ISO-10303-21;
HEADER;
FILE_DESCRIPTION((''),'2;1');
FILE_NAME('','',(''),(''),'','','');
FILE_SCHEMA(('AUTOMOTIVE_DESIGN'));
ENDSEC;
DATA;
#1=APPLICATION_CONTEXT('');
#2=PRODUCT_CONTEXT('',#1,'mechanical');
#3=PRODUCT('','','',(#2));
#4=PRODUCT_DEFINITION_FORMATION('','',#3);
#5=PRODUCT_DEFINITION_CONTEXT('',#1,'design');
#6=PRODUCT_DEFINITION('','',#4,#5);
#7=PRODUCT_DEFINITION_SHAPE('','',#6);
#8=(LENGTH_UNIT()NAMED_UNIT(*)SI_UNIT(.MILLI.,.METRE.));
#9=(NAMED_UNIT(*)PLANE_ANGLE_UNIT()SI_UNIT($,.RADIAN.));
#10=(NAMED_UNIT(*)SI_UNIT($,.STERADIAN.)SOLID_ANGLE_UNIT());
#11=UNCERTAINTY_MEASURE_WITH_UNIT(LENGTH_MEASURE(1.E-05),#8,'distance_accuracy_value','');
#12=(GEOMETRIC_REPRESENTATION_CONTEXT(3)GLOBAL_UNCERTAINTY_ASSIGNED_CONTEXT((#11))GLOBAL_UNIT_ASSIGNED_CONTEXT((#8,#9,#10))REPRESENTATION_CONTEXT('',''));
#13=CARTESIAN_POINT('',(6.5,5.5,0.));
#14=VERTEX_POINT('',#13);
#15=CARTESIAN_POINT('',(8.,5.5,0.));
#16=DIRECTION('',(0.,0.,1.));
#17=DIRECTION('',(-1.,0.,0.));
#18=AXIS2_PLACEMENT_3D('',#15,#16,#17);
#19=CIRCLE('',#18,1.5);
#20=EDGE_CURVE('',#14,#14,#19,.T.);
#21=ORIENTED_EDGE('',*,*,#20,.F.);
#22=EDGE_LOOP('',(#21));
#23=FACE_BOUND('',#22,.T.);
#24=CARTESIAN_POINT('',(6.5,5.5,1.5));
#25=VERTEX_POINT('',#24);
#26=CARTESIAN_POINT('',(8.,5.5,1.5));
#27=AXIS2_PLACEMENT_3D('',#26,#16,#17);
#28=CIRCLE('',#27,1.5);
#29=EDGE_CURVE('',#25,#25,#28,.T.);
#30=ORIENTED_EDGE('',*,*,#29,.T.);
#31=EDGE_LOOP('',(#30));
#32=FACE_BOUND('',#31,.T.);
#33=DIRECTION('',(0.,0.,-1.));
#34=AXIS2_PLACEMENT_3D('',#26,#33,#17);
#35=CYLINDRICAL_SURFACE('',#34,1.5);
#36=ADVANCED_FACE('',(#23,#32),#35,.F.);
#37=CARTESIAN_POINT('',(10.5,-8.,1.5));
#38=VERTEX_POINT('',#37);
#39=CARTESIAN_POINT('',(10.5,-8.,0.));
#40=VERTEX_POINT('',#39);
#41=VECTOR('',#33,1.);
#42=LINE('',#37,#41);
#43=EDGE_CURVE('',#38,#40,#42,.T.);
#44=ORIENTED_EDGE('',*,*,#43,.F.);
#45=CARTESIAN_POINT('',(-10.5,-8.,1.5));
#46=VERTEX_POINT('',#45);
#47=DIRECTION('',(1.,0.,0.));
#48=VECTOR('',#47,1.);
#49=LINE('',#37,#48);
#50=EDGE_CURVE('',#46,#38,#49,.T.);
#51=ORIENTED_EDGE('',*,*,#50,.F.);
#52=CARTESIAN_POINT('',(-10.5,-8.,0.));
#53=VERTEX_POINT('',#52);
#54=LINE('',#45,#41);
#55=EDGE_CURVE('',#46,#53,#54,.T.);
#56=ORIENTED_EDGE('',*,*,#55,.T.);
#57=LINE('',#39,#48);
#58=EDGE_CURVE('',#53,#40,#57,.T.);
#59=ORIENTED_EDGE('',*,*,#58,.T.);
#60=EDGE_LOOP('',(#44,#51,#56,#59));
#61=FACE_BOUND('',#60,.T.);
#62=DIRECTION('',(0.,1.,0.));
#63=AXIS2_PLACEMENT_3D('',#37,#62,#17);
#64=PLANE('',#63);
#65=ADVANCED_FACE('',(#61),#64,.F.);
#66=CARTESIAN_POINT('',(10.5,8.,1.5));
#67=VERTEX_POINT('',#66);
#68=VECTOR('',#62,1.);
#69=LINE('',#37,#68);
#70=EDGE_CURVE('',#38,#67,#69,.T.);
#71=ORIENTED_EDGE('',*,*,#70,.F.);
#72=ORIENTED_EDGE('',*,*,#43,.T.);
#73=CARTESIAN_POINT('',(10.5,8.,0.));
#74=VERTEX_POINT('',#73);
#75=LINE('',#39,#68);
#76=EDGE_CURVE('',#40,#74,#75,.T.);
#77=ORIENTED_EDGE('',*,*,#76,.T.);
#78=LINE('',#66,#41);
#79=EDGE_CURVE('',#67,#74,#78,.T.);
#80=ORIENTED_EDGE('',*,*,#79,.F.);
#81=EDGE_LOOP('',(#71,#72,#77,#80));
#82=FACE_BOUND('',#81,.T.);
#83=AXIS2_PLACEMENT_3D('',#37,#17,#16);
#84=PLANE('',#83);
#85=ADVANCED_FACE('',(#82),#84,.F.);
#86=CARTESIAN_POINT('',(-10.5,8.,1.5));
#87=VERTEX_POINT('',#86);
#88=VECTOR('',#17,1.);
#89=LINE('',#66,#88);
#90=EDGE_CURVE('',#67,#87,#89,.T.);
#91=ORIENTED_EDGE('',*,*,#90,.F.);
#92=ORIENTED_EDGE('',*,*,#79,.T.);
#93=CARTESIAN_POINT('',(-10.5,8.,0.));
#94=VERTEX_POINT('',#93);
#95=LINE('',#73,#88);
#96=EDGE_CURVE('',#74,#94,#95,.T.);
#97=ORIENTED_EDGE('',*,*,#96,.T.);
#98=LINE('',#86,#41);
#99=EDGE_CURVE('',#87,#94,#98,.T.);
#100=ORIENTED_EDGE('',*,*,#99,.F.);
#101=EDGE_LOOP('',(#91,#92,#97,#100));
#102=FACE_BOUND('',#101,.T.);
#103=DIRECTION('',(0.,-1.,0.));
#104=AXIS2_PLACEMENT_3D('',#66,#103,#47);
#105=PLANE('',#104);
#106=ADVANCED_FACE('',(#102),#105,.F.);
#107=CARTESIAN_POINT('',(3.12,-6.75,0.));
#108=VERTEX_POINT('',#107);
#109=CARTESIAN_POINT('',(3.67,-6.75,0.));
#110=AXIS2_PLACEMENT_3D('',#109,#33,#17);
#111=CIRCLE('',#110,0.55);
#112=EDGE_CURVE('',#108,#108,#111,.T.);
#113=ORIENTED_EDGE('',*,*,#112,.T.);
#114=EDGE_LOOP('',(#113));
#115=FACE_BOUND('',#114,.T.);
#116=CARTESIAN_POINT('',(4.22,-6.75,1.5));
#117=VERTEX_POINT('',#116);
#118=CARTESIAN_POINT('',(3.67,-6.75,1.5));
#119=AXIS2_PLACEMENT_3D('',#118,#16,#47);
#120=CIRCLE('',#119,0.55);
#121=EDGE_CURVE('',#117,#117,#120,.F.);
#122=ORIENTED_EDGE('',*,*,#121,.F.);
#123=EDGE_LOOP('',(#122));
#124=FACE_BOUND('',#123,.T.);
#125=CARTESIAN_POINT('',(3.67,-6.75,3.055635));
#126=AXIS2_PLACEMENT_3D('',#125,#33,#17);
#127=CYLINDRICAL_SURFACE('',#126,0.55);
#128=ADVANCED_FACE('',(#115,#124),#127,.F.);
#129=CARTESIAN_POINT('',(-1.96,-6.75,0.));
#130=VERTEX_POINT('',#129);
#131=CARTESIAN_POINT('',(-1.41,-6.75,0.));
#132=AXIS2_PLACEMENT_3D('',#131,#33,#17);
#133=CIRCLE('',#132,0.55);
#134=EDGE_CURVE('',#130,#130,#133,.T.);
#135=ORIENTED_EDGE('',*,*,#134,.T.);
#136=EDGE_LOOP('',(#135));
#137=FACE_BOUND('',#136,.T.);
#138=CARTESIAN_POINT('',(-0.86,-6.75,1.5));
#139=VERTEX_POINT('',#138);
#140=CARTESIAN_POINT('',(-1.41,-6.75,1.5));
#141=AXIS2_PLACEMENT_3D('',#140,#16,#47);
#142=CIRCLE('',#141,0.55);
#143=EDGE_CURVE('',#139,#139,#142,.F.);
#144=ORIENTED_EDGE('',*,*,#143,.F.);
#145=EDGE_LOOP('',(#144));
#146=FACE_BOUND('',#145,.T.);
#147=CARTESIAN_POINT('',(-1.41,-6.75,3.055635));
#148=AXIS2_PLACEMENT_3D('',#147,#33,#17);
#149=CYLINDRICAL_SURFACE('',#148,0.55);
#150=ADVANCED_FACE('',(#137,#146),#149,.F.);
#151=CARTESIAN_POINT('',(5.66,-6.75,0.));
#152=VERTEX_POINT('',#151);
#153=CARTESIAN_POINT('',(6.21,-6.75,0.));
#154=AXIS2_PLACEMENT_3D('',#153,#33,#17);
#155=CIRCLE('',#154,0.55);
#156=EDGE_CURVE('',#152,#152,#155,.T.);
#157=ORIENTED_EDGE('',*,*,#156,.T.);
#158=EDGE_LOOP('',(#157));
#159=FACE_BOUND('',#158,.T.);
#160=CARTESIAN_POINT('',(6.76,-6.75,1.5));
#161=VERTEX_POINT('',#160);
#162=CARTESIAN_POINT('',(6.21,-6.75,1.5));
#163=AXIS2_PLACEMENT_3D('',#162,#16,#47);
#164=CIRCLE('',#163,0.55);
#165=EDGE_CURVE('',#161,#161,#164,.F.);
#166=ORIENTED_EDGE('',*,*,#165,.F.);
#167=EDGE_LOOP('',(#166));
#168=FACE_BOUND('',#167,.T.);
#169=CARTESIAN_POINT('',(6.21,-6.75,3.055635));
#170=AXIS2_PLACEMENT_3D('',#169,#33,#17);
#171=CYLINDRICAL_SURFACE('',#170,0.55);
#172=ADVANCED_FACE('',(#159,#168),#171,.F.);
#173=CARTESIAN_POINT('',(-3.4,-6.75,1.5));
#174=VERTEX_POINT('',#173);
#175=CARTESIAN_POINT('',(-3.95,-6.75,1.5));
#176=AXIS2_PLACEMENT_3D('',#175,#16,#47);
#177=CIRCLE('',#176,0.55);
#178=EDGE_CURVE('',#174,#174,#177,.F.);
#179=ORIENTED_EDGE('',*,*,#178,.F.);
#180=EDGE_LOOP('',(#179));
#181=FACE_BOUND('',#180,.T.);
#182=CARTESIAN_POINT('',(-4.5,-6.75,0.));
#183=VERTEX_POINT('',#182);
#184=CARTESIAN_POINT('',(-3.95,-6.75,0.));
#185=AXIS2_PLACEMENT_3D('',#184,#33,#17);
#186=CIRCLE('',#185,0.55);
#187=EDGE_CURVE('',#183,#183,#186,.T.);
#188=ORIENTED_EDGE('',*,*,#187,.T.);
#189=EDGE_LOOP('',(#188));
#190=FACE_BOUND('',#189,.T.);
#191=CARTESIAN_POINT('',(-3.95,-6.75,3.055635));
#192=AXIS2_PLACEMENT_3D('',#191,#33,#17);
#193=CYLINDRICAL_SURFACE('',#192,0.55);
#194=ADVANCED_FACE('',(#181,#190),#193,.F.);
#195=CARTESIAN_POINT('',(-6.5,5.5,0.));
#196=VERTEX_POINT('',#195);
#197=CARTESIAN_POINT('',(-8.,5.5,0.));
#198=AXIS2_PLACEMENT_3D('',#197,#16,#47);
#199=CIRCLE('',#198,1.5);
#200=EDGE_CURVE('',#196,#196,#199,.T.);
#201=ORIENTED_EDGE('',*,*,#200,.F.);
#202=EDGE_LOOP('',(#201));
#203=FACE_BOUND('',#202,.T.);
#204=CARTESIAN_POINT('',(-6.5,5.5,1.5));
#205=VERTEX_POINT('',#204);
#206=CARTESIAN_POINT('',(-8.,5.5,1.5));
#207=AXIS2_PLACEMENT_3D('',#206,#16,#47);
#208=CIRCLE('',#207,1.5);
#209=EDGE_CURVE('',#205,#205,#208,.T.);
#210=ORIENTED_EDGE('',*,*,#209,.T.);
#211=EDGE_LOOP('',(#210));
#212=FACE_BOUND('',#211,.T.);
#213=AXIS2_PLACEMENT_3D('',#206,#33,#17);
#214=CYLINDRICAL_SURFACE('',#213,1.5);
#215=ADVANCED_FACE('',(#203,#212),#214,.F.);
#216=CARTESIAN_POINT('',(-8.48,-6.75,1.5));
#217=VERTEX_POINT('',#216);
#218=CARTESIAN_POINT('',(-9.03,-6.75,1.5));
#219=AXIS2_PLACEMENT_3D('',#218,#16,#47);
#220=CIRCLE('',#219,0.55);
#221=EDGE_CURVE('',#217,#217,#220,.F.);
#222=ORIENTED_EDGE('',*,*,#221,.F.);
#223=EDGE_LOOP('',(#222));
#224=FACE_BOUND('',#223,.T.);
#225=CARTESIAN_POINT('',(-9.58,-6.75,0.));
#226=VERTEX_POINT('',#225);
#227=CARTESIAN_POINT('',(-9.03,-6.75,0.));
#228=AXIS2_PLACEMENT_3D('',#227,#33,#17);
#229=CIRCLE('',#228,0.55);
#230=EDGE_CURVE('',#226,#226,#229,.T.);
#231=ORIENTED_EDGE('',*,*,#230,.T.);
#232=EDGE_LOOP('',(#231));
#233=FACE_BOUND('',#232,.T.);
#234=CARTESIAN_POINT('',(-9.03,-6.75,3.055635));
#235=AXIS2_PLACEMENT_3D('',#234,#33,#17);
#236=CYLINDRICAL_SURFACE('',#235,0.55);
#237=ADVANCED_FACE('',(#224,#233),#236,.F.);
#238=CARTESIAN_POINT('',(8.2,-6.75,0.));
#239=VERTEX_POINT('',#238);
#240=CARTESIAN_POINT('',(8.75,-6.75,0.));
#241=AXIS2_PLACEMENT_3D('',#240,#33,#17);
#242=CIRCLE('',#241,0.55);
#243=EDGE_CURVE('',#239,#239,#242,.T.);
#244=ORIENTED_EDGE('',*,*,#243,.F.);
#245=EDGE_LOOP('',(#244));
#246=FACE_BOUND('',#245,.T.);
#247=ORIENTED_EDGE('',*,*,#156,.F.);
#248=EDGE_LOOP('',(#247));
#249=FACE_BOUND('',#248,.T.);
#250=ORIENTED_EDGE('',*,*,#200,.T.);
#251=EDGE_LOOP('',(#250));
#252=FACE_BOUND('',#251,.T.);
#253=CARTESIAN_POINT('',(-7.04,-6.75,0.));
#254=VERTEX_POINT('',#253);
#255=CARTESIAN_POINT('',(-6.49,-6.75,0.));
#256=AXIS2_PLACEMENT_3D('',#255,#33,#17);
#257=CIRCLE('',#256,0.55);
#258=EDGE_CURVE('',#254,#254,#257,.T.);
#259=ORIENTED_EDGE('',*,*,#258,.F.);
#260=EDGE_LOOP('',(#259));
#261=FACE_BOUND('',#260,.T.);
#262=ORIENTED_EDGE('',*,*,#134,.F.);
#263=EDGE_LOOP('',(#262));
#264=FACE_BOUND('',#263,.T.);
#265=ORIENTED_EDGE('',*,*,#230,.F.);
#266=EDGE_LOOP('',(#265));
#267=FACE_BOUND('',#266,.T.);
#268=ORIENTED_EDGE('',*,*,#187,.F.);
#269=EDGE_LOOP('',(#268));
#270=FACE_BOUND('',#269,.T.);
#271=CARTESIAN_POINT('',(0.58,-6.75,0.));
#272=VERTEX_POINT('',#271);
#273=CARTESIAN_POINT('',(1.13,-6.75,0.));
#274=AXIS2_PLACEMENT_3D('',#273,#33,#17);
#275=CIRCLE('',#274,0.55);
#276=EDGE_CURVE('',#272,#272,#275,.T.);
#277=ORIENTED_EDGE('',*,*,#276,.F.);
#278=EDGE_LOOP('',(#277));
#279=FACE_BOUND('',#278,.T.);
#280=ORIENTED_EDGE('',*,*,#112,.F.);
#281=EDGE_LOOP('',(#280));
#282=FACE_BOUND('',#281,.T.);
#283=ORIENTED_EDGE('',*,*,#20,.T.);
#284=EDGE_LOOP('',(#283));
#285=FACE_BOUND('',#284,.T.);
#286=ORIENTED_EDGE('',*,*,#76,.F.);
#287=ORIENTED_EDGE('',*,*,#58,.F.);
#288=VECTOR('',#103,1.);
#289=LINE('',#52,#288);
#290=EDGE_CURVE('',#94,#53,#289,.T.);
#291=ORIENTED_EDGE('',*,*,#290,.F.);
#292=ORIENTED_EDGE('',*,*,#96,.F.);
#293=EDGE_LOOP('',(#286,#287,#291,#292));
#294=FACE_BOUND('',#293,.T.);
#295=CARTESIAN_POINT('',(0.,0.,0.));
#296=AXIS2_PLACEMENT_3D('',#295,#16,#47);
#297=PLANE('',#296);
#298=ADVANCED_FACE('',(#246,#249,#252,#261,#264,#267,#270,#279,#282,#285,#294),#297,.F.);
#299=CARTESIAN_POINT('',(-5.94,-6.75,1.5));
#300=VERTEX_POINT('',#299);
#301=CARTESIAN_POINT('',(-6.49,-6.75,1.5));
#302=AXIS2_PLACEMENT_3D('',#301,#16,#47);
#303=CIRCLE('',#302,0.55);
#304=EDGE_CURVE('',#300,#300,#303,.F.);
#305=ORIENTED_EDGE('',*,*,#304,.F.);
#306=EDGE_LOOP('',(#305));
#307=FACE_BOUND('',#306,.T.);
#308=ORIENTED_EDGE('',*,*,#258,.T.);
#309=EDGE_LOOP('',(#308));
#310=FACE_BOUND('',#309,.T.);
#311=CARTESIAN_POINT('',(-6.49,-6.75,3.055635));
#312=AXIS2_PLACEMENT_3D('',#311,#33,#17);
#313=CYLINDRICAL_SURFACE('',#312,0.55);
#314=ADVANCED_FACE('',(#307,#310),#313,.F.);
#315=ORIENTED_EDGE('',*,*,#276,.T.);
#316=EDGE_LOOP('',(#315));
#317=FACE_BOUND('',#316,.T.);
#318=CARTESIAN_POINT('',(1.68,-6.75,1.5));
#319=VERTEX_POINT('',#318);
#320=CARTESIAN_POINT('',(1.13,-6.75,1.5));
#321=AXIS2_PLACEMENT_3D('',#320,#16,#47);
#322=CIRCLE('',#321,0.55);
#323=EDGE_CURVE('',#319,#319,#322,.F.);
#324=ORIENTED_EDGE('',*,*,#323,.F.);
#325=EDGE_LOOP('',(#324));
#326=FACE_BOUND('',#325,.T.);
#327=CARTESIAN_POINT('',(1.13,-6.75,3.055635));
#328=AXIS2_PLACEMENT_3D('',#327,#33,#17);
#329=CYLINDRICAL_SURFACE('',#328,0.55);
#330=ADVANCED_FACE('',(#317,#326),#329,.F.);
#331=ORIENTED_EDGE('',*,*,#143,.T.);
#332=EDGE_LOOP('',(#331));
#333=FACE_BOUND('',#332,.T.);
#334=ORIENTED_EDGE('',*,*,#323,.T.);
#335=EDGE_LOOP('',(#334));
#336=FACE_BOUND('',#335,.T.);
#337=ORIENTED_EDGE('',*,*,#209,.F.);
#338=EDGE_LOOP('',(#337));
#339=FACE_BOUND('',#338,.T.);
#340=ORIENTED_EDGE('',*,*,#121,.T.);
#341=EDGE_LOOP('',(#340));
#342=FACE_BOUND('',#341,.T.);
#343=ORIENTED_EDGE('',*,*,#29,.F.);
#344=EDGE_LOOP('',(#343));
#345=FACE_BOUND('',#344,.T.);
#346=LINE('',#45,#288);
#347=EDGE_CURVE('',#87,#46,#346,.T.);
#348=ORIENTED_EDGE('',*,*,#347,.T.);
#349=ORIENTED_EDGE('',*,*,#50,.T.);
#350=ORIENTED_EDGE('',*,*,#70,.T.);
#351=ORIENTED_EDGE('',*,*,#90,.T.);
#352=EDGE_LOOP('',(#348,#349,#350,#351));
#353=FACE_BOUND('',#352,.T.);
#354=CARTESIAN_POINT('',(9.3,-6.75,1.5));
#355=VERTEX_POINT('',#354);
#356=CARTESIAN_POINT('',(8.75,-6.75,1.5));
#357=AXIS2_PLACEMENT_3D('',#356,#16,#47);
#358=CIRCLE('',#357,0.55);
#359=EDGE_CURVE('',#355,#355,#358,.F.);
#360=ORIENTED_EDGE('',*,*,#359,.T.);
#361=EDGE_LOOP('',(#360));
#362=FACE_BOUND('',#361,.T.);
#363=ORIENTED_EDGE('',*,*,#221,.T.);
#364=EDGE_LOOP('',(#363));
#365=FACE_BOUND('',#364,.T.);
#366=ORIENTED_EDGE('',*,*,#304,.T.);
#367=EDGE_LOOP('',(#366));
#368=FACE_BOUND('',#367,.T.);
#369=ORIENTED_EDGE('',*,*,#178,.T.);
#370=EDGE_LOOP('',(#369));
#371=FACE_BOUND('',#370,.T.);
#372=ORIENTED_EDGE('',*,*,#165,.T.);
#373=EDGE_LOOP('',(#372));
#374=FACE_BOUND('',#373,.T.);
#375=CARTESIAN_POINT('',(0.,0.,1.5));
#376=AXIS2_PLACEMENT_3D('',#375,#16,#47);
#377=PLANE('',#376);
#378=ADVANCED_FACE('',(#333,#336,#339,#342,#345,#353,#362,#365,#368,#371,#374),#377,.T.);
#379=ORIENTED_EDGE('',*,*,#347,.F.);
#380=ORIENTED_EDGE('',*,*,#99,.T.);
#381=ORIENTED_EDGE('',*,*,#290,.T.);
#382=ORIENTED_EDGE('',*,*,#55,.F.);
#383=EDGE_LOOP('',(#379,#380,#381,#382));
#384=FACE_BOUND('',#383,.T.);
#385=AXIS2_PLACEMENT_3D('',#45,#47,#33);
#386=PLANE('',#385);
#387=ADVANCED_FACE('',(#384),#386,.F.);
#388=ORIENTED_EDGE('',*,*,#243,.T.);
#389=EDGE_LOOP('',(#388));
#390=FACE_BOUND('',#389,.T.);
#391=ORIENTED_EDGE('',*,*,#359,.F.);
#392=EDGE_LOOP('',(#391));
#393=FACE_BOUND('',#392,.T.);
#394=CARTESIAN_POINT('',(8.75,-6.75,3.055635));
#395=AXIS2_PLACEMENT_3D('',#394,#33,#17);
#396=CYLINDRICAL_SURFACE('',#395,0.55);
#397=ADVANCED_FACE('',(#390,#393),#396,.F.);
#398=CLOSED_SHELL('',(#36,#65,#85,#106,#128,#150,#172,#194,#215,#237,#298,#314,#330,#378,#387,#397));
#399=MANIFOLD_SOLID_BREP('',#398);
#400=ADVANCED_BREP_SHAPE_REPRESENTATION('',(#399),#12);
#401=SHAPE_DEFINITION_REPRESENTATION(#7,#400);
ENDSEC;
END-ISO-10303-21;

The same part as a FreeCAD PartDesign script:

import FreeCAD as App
import Part
import Sketcher
from FreeCAD import Vector

doc = App.newDocument("Part")
body = doc.addObject("PartDesign::Body", "Body")

# Sketch on XY plane
sketch1 = body.newObject("Sketcher::SketchObject", "Sketch")
sketch1.AttachmentSupport = (doc.getObject("XY_Plane"), [""])
sketch1.MapMode = "FlatFace"
sketch1.addGeometry([
    Part.LineSegment(Vector(-10.5, 8, 0), Vector(-10.5, -8, 0)),  # 0
    Part.LineSegment(Vector(-10.5, -8, 0), Vector(10.5, -8, 0)),  # 1
    Part.LineSegment(Vector(10.5, -8, 0), Vector(10.5, 8, 0)),  # 2
    Part.LineSegment(Vector(10.5, 8, 0), Vector(-10.5, 8, 0)),  # 3
    Part.Circle(Vector(-8, 5.5, 0), Vector(0, 0, 1), 1.5),  # 4
    Part.Circle(Vector(8, 5.5, 0), Vector(0, 0, 1), 1.5),  # 5
], False)
sketch1.addConstraint([
    Sketcher.Constraint("Coincident", 0, 2, 1, 1),
    Sketcher.Constraint("Coincident", 1, 2, 2, 1),
    Sketcher.Constraint("Coincident", 2, 2, 3, 1),
    Sketcher.Constraint("Coincident", 3, 2, 0, 1),
    Sketcher.Constraint("Vertical", 0),
    Sketcher.Constraint("Horizontal", 1),
    Sketcher.Constraint("Vertical", 2),
    Sketcher.Constraint("Horizontal", 3),
    Sketcher.Constraint("Equal", 4, 5),
    Sketcher.Constraint("Symmetric", 0, 2, 2, 2, -1, 1),
    Sketcher.Constraint("Symmetric", 4, 3, 5, 3, -2),
    Sketcher.Constraint("Diameter", 4, 3.0),
    Sketcher.Constraint("DistanceX", 1, 1, 1, 2, 21.0),
    Sketcher.Constraint("DistanceY", 0, 2, 0, 1, 16.0),
    Sketcher.Constraint("DistanceX", 4, 3, -1, 1, 8.0),
    Sketcher.Constraint("DistanceY", -1, 1, 4, 3, 5.5),
])
pad1 = body.newObject("PartDesign::Pad", "Pad")
pad1.Profile = sketch1
pad1.Length = 1.5

# Sketch on XY plane
sketch2 = body.newObject("Sketcher::SketchObject", "Sketch001")
sketch2.AttachmentSupport = (doc.getObject("XY_Plane"), [""])
sketch2.MapMode = "FlatFace"
sketch2.addGeometry([
    Part.Circle(Vector(8.75, -6.75, 0), Vector(0, 0, 1), 0.55),  # 0
    Part.Circle(Vector(6.21, -6.75, 0), Vector(0, 0, 1), 0.55),  # 1
    Part.Circle(Vector(3.67, -6.75, 0), Vector(0, 0, 1), 0.55),  # 2
    Part.Circle(Vector(1.13, -6.75, 0), Vector(0, 0, 1), 0.55),  # 3
    Part.Circle(Vector(-1.41, -6.75, 0), Vector(0, 0, 1), 0.55),  # 4
    Part.Circle(Vector(-3.95, -6.75, 0), Vector(0, 0, 1), 0.55),  # 5
    Part.Circle(Vector(-6.49, -6.75, 0), Vector(0, 0, 1), 0.55),  # 6
    Part.Circle(Vector(-9.03, -6.75, 0), Vector(0, 0, 1), 0.55),  # 7
], False)
sketch2.addConstraint([
    Sketcher.Constraint("Equal", 0, 1),
    Sketcher.Constraint("Equal", 1, 2),
    Sketcher.Constraint("Equal", 2, 3),
    Sketcher.Constraint("Equal", 3, 4),
    Sketcher.Constraint("Equal", 4, 5),
    Sketcher.Constraint("Equal", 5, 6),
    Sketcher.Constraint("Equal", 6, 7),
    Sketcher.Constraint("Horizontal", 0, 3, 1, 3),
    Sketcher.Constraint("Horizontal", 1, 3, 2, 3),
    Sketcher.Constraint("Horizontal", 2, 3, 3, 3),
    Sketcher.Constraint("Horizontal", 3, 3, 4, 3),
    Sketcher.Constraint("Horizontal", 4, 3, 5, 3),
    Sketcher.Constraint("Horizontal", 5, 3, 6, 3),
    Sketcher.Constraint("Horizontal", 6, 3, 7, 3),
    Sketcher.Constraint("Diameter", 0, 1.1),
    Sketcher.Constraint("DistanceX", 5, 3, 0, 3, 12.7),
    Sketcher.Constraint("DistanceX", 6, 3, 1, 3, 12.7),
    Sketcher.Constraint("DistanceX", 7, 3, 2, 3, 12.7),
    Sketcher.Constraint("DistanceX", -1, 1, 0, 3, 8.75),
    Sketcher.Constraint("DistanceY", 0, 3, -1, 1, 6.75),
    Sketcher.Constraint("DistanceX", -1, 1, 1, 3, 6.21),
    Sketcher.Constraint("DistanceX", -1, 1, 2, 3, 3.67),
    Sketcher.Constraint("DistanceX", -1, 1, 3, 3, 1.13),
    Sketcher.Constraint("DistanceX", 4, 3, -1, 1, 1.41),
])
pocket1 = body.newObject("PartDesign::Pocket", "Pocket")
pocket1.Profile = sketch2
pocket1.Length = 1.5
pocket1.Reversed = True

doc.recompute()
